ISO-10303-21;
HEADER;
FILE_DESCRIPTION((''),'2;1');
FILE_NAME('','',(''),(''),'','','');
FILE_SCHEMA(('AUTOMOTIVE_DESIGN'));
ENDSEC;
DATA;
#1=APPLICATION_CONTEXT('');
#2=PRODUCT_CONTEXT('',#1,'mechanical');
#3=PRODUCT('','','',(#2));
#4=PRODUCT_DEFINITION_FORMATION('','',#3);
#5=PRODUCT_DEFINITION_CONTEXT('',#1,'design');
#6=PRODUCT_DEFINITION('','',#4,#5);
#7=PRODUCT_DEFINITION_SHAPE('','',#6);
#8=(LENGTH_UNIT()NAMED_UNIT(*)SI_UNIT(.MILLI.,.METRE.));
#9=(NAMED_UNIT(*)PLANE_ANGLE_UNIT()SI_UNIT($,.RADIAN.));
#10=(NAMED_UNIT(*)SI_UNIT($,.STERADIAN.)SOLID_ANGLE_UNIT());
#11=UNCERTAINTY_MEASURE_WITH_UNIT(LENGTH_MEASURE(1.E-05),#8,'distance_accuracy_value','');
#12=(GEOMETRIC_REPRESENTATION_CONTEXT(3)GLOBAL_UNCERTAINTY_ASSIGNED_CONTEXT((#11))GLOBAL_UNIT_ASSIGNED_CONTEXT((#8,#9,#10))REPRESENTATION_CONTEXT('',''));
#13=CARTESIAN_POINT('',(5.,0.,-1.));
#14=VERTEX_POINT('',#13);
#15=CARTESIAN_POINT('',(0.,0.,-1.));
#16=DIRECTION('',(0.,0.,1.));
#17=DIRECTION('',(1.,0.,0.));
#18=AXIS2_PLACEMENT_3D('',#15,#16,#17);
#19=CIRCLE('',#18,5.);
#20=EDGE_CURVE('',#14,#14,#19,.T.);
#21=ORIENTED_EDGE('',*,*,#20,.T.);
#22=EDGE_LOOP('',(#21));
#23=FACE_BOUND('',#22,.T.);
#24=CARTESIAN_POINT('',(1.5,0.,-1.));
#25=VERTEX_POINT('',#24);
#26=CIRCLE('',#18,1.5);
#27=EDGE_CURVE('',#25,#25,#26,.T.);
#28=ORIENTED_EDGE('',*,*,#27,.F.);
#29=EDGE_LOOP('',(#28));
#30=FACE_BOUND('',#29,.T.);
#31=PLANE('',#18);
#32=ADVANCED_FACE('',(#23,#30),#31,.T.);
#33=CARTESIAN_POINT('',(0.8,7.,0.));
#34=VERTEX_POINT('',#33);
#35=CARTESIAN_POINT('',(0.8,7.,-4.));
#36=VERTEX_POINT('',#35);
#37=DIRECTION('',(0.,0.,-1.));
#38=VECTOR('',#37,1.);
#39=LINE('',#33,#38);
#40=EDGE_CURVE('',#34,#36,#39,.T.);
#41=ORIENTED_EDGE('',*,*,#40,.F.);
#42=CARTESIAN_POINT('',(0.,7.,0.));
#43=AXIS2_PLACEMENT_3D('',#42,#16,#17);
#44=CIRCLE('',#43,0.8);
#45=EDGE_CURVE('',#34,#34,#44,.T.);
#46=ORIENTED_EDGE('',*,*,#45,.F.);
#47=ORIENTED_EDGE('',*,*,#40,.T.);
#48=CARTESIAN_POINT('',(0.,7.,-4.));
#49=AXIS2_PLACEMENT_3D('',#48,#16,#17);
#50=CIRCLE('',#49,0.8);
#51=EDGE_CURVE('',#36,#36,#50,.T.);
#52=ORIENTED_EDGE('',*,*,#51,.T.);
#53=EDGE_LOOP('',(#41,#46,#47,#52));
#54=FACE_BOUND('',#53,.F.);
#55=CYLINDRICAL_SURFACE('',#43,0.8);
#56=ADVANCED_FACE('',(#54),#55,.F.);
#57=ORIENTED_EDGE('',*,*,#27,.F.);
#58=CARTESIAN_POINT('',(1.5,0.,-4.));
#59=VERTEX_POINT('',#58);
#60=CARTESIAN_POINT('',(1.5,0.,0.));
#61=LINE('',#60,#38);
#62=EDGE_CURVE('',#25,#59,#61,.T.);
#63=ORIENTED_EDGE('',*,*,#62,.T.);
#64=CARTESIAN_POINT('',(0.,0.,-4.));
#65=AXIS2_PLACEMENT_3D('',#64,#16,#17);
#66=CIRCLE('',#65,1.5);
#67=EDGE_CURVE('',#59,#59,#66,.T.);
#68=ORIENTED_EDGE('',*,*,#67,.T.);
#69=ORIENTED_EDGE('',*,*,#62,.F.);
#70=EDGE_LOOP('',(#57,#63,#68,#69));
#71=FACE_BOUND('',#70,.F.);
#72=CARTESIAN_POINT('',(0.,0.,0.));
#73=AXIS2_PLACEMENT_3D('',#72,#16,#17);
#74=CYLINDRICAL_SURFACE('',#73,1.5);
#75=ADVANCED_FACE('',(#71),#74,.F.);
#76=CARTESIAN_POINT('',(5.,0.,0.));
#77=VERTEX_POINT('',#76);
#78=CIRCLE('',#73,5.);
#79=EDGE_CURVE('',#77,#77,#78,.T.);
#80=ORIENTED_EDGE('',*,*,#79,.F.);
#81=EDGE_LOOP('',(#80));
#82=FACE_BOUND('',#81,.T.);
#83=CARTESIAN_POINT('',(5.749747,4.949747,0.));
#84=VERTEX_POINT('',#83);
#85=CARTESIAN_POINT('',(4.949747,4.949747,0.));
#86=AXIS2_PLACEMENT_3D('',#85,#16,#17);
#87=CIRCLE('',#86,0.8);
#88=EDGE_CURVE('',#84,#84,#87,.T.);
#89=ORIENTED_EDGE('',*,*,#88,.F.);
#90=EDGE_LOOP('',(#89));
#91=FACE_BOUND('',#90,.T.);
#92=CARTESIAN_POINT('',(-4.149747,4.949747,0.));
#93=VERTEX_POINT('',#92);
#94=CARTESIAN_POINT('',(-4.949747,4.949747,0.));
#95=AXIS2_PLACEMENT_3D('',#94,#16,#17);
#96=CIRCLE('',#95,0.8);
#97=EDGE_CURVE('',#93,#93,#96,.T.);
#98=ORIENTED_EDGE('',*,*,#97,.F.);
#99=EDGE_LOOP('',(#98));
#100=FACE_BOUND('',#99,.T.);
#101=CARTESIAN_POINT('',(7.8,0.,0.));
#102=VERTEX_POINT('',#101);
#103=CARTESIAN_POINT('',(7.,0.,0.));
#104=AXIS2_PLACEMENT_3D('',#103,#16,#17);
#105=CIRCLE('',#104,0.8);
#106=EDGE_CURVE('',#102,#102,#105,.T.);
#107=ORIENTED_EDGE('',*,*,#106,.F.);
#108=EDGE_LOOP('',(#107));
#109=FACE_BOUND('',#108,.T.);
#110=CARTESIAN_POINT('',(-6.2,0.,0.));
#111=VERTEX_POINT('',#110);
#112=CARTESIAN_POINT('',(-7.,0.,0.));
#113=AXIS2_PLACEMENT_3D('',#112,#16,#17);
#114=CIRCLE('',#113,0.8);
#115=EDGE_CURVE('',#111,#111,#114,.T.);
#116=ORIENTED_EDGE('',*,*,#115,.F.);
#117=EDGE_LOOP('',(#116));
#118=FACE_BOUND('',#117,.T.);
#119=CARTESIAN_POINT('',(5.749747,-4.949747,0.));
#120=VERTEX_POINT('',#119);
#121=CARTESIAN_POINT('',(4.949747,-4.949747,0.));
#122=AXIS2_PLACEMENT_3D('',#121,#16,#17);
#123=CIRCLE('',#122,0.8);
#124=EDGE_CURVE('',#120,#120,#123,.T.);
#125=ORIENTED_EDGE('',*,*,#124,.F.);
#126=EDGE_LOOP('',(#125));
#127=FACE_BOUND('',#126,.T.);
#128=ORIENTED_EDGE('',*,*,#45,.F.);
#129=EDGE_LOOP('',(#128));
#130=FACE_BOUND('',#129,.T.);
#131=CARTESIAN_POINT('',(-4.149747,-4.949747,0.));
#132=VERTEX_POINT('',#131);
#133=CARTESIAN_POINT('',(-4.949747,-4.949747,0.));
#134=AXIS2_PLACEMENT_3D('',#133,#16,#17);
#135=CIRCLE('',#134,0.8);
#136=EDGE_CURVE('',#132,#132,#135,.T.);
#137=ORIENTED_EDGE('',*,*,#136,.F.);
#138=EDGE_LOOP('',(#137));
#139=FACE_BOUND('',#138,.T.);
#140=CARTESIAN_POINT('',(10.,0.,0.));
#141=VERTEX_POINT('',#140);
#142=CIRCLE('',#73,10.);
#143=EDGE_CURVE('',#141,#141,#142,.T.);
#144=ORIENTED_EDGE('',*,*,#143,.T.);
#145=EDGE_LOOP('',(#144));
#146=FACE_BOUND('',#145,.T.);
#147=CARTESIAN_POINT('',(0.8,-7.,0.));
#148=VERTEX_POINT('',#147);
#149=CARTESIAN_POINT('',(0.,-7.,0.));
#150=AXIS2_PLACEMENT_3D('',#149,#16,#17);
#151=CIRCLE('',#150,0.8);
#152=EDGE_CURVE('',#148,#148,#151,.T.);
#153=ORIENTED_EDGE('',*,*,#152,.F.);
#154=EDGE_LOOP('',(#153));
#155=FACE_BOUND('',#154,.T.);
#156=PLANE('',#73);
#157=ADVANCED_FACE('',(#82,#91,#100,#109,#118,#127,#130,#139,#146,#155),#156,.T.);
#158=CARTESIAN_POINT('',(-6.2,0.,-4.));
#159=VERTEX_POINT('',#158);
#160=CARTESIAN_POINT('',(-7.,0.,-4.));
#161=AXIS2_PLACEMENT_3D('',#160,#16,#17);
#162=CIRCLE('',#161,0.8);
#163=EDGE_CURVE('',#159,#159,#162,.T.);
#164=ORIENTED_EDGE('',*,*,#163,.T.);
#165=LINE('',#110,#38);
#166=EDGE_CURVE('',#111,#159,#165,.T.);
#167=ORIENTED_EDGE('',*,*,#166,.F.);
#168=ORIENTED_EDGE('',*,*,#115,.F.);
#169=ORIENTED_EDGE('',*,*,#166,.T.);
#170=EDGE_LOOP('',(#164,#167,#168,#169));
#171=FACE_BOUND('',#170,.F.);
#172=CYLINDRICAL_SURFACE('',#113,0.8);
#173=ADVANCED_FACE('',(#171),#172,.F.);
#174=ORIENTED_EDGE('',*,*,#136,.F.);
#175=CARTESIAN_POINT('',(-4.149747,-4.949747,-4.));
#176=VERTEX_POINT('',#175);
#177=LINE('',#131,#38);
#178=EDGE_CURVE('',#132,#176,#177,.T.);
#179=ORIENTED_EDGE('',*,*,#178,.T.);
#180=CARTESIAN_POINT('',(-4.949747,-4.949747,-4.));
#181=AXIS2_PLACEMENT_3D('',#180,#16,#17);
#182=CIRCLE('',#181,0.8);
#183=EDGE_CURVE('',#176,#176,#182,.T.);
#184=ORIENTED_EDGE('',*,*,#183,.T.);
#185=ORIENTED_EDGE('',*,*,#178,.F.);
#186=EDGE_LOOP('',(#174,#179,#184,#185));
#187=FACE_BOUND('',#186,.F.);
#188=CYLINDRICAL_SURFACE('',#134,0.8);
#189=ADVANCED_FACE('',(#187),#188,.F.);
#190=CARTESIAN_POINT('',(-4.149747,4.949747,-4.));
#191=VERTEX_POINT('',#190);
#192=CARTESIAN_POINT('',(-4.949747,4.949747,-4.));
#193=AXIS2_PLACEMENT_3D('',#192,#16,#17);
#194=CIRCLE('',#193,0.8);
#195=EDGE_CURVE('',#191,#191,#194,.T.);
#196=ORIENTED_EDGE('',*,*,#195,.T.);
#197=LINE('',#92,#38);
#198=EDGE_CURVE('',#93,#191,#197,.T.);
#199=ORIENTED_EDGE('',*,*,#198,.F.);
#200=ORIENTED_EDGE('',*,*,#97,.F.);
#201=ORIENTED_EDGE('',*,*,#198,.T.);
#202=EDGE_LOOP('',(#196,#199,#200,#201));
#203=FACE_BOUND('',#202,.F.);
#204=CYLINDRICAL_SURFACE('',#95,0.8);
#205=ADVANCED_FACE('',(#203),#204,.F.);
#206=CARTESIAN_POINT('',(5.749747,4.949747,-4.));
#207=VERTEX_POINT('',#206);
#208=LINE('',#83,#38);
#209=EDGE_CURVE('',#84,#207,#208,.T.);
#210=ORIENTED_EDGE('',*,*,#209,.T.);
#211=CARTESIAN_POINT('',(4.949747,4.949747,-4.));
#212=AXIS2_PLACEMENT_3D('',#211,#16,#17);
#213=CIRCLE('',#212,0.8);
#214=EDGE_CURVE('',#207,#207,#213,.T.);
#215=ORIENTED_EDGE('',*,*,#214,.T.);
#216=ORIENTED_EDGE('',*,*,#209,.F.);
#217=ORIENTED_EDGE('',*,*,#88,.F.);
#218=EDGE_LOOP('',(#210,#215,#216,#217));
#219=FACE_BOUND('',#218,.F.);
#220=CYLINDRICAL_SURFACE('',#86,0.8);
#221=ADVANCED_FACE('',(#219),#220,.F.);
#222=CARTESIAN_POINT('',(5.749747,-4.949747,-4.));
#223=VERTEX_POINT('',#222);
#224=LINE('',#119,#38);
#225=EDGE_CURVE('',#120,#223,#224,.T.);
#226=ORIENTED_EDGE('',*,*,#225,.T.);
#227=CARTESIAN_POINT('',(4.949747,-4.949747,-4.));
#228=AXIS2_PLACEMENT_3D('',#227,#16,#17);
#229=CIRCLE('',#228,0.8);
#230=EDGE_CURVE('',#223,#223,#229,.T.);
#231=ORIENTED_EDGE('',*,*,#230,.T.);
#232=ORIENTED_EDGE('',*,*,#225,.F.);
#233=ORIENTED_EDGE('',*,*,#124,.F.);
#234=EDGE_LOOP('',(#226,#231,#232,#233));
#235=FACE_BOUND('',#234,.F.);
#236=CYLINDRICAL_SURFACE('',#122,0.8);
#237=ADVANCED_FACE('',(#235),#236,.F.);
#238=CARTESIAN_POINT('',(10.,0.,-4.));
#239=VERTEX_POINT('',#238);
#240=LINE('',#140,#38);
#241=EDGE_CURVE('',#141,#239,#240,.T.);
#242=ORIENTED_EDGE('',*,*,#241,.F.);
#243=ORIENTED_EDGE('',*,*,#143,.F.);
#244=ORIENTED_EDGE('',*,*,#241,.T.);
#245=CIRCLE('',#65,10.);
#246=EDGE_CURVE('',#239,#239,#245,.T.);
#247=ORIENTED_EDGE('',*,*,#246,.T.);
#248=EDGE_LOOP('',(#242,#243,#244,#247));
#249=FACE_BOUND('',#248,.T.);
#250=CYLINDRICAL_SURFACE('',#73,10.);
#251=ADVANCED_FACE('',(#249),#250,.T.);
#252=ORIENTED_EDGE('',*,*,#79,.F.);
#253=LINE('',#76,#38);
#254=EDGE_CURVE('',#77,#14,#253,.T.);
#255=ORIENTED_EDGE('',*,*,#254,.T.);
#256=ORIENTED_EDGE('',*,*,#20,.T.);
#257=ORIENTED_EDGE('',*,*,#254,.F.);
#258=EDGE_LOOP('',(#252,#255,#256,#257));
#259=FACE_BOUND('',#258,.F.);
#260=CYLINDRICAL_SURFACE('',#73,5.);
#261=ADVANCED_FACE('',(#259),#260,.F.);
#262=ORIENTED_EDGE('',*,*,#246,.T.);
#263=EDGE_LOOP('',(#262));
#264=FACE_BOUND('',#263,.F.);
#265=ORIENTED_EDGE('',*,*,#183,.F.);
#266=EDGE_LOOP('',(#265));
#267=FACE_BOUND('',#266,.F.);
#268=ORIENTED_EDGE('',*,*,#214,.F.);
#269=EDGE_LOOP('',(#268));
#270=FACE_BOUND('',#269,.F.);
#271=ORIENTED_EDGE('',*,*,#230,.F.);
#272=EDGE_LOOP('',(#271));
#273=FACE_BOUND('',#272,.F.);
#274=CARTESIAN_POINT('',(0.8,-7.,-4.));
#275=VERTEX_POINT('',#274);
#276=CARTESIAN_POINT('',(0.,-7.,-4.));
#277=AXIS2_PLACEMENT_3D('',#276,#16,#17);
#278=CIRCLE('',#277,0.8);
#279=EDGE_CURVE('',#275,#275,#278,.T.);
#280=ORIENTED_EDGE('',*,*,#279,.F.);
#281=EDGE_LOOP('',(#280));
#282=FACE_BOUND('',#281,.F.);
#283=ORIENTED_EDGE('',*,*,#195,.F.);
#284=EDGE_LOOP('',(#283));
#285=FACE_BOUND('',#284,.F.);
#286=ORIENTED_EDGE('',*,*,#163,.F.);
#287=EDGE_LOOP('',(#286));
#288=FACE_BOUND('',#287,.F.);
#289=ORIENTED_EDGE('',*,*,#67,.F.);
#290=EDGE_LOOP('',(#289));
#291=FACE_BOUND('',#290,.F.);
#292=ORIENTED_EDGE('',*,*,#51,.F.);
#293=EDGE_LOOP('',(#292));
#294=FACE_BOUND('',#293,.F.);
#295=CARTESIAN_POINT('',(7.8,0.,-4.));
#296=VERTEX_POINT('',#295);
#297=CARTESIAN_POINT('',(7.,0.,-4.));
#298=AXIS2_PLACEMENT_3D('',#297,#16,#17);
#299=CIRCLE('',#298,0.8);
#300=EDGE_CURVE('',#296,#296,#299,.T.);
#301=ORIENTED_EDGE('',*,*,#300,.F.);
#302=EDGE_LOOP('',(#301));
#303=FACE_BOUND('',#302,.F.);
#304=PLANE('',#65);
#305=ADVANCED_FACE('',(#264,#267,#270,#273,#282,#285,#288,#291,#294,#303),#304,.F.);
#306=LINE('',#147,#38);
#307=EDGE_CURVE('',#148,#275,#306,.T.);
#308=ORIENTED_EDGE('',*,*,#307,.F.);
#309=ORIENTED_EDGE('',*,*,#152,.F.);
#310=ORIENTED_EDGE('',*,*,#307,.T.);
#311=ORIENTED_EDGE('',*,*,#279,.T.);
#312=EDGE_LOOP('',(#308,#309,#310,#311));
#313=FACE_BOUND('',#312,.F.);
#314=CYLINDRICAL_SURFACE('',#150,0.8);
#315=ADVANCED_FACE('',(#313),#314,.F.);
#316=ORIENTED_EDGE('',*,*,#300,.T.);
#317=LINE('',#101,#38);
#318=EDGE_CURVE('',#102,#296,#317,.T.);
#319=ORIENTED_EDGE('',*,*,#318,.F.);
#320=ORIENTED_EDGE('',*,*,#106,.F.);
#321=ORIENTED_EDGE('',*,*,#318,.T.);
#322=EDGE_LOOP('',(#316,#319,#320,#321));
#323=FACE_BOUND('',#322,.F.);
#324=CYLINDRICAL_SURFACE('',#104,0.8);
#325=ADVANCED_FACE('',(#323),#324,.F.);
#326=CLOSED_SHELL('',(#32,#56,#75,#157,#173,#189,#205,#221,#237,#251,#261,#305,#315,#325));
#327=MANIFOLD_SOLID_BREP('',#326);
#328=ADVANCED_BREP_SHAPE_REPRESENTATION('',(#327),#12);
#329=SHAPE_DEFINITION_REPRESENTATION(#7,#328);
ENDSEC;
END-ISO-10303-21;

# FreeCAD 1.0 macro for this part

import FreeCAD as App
import Part
import Sketcher

V = App.Vector
Q = App.Units.Quantity

doc = App.newDocument("Part")
body = doc.addObject("PartDesign::Body", "Body")

sketch1 = body.newObject("Sketcher::SketchObject", "Sketch")
sketch1.AttachmentSupport = (doc.getObject("XY_Plane"), [""])
sketch1.MapMode = "FlatFace"
sketch1.addGeometry([
    Part.Circle(V(0, 0, 0), V(0, 0, 1), 10),
    Part.Circle(V(-4.9, -4.9, 0), V(0, 0, 1), 0.8),
    Part.Circle(V(0, -7, 0), V(0, 0, 1), 0.8),
    Part.Circle(V(4.9, -4.9, 0), V(0, 0, 1), 0.8),
    Part.Circle(V(-7, 0, 0), V(0, 0, 1), 0.8),
    Part.Circle(V(-4.9, 4.9, 0), V(0, 0, 1), 0.8),
    Part.Circle(V(0, 0, 0), V(0, 0, 1), 1.5),
    Part.Circle(V(7, 0, 0), V(0, 0, 1), 0.8),
    Part.Circle(V(0, 7, 0), V(0, 0, 1), 0.8),
    Part.Circle(V(4.9, 4.9, 0), V(0, 0, 1), 0.8),
], False)
sketch1.addConstraint([
    Sketcher.Constraint("Coincident", 0, 3, -1, 1),
    Sketcher.Constraint("Coincident", 6, 3, -1, 1),
    Sketcher.Constraint("Equal", 1, 2),
    Sketcher.Constraint("Equal", 2, 3),
    Sketcher.Constraint("Equal", 3, 4),
    Sketcher.Constraint("Equal", 4, 5),
    Sketcher.Constraint("Equal", 5, 7),
    Sketcher.Constraint("Equal", 7, 8),
    Sketcher.Constraint("Equal", 8, 9),
    Sketcher.Constraint("Symmetric", 3, 3, 5, 3, -1, 1),
    Sketcher.Constraint("Symmetric", 4, 3, 7, 3, -1, 1),
    Sketcher.Constraint("Symmetric", 2, 3, 8, 3, -1, 1),
    Sketcher.Constraint("Symmetric", 1, 3, 9, 3, -1, 1),
    Sketcher.Constraint("Symmetric", 1, 3, 3, 3, -2),
    Sketcher.Constraint("PointOnObject", 2, 3, -2),
    Sketcher.Constraint("PointOnObject", 4, 3, -1),
    Sketcher.Constraint("Diameter", 0, Q("20 mm")),
    Sketcher.Constraint("Diameter", 6, Q("3 mm")),
    Sketcher.Constraint("Diameter", 1, Q("1.6 mm")),
    Sketcher.Constraint("DistanceY", 2, 3, -1, 1, Q("7 mm")),
    Sketcher.Constraint("DistanceX", 4, 3, -1, 1, Q("7 mm")),
    Sketcher.Constraint("DistanceX", 1, 3, -1, 1, Q("4.949747 mm")),
    Sketcher.Constraint("DistanceY", 1, 3, -1, 1, Q("4.949747 mm")),
])
pad1 = body.newObject("PartDesign::Pad", "Pad")
pad1.Profile = sketch1
pad1.Length = 4
pad1.Reversed = True

sketch2 = body.newObject("Sketcher::SketchObject", "Sketch001")
sketch2.AttachmentSupport = (doc.getObject("XY_Plane"), [""])
sketch2.MapMode = "FlatFace"
sketch2.addGeometry([
    Part.Circle(V(0, 0, 0), V(0, 0, 1), 5),
    Part.Circle(V(0, 0, 0), V(0, 0, 1), 1.5),
], False)
sketch2.addConstraint([
    Sketcher.Constraint("Coincident", 0, 3, -1, 1),
    Sketcher.Constraint("Coincident", 1, 3, -1, 1),
    Sketcher.Constraint("Diameter", 0, Q("10 mm")),
    Sketcher.Constraint("Diameter", 1, Q("3 mm")),
])
pocket1 = body.newObject("PartDesign::Pocket", "Pocket")
pocket1.Profile = sketch2
pocket1.Length = 1

doc.recompute()
